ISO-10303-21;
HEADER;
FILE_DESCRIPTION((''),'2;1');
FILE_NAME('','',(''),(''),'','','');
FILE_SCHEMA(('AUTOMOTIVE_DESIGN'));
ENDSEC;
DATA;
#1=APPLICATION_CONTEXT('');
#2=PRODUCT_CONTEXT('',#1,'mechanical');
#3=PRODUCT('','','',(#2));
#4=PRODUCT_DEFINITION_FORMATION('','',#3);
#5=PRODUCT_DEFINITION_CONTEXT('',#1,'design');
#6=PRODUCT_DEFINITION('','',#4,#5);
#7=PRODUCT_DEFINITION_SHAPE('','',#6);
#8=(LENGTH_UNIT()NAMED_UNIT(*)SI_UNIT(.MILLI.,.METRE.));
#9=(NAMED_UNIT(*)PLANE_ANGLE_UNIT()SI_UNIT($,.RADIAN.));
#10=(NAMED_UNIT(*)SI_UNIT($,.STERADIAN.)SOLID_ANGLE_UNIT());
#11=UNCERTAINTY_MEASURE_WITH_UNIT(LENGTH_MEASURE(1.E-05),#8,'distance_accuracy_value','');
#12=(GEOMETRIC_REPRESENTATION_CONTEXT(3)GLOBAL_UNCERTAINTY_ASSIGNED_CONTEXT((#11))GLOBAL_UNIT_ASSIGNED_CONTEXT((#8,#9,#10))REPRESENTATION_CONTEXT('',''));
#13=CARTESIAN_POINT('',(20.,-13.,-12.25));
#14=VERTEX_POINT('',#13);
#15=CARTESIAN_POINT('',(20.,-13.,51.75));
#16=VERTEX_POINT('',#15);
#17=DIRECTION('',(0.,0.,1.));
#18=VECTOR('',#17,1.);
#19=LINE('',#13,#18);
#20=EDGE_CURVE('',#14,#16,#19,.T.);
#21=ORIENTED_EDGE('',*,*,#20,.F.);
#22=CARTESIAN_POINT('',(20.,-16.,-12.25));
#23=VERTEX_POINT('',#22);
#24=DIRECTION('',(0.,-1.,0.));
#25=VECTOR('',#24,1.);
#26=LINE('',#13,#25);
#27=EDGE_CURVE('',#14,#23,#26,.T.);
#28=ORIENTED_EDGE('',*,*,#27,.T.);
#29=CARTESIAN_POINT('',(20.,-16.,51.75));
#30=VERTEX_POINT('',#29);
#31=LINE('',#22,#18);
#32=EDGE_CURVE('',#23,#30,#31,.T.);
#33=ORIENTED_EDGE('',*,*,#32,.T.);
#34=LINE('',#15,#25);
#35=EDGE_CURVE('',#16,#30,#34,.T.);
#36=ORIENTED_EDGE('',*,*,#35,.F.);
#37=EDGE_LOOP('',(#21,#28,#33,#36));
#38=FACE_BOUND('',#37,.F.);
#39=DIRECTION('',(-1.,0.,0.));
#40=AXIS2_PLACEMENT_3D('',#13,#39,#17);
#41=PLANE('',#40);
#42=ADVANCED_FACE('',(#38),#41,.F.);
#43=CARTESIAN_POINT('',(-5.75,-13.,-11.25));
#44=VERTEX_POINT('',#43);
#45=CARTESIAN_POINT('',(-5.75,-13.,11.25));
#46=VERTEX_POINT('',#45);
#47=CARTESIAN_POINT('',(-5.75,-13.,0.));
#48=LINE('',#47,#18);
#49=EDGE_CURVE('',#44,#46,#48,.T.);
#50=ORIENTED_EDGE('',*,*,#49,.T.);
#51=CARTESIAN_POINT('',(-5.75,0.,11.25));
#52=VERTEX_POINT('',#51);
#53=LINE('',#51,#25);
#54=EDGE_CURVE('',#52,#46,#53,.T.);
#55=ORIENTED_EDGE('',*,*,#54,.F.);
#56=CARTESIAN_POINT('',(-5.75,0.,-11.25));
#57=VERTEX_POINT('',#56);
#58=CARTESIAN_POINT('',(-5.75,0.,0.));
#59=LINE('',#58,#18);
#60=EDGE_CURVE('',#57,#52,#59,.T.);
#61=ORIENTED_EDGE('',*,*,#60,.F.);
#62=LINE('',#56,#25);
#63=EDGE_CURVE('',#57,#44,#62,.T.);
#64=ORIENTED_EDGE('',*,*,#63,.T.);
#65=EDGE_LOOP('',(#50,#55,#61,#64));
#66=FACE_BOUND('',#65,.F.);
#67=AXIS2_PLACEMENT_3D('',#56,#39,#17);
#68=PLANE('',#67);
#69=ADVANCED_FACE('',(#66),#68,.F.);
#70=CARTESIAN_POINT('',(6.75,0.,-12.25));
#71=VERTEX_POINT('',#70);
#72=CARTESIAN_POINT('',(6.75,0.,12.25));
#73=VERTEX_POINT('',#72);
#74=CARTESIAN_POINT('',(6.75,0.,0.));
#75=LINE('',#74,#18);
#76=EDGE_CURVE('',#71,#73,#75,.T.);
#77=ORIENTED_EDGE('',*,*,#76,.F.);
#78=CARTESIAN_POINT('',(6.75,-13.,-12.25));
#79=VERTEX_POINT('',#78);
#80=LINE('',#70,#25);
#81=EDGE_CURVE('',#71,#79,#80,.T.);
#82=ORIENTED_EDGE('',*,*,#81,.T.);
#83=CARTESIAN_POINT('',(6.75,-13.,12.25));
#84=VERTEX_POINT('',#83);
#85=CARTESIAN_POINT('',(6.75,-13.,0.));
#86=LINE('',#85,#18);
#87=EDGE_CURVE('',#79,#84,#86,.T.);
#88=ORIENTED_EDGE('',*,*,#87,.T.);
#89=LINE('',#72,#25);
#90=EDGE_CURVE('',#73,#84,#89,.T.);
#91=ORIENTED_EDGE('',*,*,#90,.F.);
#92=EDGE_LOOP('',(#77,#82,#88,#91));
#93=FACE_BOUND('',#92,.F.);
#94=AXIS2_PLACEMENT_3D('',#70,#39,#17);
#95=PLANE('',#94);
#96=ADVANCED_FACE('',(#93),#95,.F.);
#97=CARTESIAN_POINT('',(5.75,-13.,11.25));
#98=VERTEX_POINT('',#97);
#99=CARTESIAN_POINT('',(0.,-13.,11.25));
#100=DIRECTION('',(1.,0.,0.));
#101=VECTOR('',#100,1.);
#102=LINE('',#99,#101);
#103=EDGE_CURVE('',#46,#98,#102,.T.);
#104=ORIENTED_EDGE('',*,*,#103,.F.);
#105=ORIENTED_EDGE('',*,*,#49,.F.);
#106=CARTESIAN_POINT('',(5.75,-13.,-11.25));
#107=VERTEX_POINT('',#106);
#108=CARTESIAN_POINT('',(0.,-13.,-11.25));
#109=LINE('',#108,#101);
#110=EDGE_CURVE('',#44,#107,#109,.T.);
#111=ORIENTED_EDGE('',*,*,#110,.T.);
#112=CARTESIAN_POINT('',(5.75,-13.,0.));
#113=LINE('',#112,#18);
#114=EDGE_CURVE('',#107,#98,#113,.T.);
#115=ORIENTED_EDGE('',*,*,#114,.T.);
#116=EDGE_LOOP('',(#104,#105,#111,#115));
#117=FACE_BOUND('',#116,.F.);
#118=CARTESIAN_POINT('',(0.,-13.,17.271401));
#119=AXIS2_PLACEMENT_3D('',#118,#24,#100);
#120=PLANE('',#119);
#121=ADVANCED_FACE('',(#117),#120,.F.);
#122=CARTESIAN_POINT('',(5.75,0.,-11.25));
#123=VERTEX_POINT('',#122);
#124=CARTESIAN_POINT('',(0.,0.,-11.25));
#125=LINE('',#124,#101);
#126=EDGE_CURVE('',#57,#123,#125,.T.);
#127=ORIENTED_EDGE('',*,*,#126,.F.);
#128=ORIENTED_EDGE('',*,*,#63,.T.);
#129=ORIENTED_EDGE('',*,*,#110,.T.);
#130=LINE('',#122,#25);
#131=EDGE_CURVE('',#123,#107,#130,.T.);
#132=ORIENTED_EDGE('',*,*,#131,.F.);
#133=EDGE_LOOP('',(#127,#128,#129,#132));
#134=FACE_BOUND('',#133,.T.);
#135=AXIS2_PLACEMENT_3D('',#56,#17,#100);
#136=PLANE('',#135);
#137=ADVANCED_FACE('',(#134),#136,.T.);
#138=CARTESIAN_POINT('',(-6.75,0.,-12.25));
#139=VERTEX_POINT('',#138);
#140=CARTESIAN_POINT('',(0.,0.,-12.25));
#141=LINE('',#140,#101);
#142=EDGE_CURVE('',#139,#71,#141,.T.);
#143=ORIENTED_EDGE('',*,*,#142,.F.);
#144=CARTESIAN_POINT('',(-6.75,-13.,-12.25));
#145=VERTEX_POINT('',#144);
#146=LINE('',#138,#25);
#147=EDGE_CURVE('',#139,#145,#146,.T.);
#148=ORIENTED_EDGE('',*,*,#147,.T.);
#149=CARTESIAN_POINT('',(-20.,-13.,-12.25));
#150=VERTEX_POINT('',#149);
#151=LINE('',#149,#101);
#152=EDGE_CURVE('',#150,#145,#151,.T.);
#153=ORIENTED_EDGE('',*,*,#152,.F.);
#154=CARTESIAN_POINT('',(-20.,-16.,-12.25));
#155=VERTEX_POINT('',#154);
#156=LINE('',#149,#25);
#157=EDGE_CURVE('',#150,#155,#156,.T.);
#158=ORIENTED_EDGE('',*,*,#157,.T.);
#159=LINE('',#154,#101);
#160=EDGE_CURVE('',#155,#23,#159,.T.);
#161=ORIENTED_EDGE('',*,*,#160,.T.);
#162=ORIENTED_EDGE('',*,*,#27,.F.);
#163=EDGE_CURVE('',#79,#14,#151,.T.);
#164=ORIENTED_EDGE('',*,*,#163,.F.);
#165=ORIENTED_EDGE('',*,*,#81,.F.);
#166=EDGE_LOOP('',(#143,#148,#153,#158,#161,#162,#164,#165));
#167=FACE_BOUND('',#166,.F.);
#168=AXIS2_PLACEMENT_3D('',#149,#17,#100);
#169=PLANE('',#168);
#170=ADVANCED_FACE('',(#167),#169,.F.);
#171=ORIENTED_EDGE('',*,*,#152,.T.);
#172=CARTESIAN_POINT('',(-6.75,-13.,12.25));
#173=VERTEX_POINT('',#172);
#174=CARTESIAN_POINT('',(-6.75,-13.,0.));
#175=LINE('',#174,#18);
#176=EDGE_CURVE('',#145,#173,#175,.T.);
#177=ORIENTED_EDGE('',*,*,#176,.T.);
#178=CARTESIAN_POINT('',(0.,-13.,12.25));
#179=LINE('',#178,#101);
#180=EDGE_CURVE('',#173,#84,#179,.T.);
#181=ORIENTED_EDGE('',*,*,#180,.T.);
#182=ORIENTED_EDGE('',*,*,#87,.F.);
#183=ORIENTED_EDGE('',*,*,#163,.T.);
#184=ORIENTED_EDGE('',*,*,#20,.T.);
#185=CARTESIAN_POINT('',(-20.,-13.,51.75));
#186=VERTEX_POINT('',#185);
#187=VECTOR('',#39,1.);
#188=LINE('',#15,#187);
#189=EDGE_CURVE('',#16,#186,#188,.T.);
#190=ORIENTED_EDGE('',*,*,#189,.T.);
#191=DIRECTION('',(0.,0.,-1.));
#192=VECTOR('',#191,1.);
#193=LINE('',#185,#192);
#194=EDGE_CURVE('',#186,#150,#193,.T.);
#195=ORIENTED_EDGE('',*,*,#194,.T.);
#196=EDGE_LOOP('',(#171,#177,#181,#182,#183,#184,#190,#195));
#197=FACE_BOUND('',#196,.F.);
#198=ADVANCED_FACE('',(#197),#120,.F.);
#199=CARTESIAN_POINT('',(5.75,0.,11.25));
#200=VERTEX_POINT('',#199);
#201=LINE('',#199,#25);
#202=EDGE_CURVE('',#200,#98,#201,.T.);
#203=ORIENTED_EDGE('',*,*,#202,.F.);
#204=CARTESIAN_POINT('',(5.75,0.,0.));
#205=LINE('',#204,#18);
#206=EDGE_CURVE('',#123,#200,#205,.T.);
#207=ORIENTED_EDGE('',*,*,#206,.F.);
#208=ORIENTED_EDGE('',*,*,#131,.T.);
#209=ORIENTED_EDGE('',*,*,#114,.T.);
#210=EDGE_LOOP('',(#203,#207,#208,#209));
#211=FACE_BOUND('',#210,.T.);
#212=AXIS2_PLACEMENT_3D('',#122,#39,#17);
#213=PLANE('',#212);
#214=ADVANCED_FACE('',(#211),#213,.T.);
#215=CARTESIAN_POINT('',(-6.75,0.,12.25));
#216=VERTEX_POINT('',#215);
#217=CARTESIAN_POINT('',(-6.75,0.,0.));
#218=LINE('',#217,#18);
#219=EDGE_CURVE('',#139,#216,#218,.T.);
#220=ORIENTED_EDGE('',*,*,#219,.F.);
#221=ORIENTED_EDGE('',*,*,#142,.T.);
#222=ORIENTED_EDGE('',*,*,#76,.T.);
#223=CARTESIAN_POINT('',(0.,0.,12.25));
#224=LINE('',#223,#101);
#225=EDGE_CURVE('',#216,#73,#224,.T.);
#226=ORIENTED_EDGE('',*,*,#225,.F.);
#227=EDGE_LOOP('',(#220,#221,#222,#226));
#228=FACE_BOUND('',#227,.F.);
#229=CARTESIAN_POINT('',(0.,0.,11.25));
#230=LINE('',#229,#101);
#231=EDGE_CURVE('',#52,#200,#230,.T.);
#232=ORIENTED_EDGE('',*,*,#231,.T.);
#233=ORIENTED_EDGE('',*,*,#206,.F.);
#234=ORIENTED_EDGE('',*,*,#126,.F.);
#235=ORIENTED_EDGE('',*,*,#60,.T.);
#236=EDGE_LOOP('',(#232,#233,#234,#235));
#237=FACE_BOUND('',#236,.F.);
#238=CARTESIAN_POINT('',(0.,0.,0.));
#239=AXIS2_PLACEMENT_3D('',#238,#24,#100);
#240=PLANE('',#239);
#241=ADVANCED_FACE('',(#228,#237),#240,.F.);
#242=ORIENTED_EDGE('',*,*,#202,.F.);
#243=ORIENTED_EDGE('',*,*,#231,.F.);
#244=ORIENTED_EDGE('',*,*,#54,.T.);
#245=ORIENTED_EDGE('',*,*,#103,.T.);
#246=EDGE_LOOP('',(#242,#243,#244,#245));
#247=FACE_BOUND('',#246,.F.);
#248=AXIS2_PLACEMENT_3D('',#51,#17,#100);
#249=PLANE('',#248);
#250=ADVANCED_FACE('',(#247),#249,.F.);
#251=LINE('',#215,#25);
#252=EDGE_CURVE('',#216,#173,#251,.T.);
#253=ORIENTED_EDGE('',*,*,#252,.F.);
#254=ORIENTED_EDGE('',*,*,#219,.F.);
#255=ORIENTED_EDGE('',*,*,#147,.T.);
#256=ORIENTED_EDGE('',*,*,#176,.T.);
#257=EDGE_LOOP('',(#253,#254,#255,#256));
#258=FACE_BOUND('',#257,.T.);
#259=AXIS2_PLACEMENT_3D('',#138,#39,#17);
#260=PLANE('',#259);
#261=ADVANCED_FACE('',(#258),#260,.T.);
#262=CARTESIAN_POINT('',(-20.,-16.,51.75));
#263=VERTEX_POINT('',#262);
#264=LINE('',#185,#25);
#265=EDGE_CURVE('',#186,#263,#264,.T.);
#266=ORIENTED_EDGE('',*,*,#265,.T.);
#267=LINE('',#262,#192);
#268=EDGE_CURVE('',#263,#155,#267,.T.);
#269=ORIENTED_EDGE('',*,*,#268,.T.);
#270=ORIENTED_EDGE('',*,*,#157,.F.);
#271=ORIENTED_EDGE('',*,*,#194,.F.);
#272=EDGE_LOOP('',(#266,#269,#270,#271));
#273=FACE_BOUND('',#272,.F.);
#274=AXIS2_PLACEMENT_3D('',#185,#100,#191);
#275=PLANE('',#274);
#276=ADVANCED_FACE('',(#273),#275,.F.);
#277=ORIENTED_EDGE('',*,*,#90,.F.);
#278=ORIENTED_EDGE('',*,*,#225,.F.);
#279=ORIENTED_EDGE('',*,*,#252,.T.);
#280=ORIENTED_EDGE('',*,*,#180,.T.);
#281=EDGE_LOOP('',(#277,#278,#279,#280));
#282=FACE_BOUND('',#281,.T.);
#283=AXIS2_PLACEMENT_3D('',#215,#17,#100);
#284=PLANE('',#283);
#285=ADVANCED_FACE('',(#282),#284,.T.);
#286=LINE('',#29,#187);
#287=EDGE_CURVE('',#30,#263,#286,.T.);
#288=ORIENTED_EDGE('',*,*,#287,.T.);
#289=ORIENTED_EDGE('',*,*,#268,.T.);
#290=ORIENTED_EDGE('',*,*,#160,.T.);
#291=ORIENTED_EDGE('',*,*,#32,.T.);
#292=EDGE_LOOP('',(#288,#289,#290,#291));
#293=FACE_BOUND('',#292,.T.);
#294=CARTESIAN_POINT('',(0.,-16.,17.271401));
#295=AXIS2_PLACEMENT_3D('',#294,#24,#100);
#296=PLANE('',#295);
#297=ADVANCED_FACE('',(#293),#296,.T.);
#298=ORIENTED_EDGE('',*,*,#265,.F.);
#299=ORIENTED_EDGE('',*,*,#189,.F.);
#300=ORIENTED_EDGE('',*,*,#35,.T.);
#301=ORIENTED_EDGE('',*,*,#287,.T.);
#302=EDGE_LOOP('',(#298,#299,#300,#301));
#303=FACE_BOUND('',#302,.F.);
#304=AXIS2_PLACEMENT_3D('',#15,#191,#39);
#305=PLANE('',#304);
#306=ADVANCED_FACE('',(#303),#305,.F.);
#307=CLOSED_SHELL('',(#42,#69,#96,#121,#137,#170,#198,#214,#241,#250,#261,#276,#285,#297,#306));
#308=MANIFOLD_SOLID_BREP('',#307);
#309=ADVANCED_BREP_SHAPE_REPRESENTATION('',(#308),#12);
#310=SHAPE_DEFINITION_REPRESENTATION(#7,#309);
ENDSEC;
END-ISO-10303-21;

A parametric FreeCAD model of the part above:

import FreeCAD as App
import Part
import Sketcher

V = App.Vector

doc = App.newDocument("Part")
body = doc.addObject("PartDesign::Body", "Body")

# Sketch on XZ plane
sketch1 = doc.addObject("Sketcher::SketchObject", "Sketch")
body.addObject(sketch1)
sketch1.AttachmentSupport = (doc.XZ_Plane, [""])
sketch1.MapMode = "FlatFace"
sketch1.addGeometry([
    Part.LineSegment(V(-7, 12, 0), V(-7, -12, 0)),  # 0
    Part.LineSegment(V(-7, -12, 0), V(7, -12, 0)),  # 1
    Part.LineSegment(V(7, -12, 0), V(7, 12, 0)),  # 2
    Part.LineSegment(V(7, 12, 0), V(-7, 12, 0)),  # 3
    Part.LineSegment(V(6, -11, 0), V(-6, -11, 0)),  # 4
    Part.LineSegment(V(-6, -11, 0), V(-6, 11, 0)),  # 5
    Part.LineSegment(V(-6, 11, 0), V(6, 11, 0)),  # 6
    Part.LineSegment(V(6, 11, 0), V(6, -11, 0)),  # 7
], False)
sketch1.addConstraint([
    Sketcher.Constraint("Coincident", 0, 2, 1, 1),
    Sketcher.Constraint("Coincident", 1, 2, 2, 1),
    Sketcher.Constraint("Coincident", 2, 2, 3, 1),
    Sketcher.Constraint("Coincident", 3, 2, 0, 1),
    Sketcher.Constraint("Coincident", 4, 2, 5, 1),
    Sketcher.Constraint("Coincident", 5, 2, 6, 1),
    Sketcher.Constraint("Coincident", 6, 2, 7, 1),
    Sketcher.Constraint("Coincident", 7, 2, 4, 1),
    Sketcher.Constraint("Vertical", 0),
    Sketcher.Constraint("Horizontal", 1),
    Sketcher.Constraint("Vertical", 2),
    Sketcher.Constraint("Horizontal", 3),
    Sketcher.Constraint("Horizontal", 4),
    Sketcher.Constraint("Vertical", 5),
    Sketcher.Constraint("Horizontal", 6),
    Sketcher.Constraint("Vertical", 7),
    Sketcher.Constraint("Symmetric", 0, 2, 2, 2, -1, 1),
    Sketcher.Constraint("Symmetric", 4, 2, 6, 2, -1, 1),
    Sketcher.Constraint("DistanceX", 1, 1, 1, 2, 13.5),
    Sketcher.Constraint("DistanceX", 4, 2, 4, 1, 11.5),
    Sketcher.Constraint("DistanceY", 0, 2, 0, 1, 24.5),
    Sketcher.Constraint("DistanceY", 5, 1, 5, 2, 22.5),
])
pad1 = doc.addObject("PartDesign::Pad", "Pad")
body.addObject(pad1)
pad1.Profile = sketch1
pad1.Length = 13

# Sketch on XZ plane
sketch2 = doc.addObject("Sketcher::SketchObject", "Sketch001")
body.addObject(sketch2)
sketch2.AttachmentSupport = (doc.XZ_Plane, [""])
sketch2.MapMode = "FlatFace"
sketch2.AttachmentOffset = App.Placement(V(0, 0, 13), App.Rotation())
sketch2.addGeometry([
    Part.LineSegment(V(-20, 52, 0), V(-20, -12, 0)),
    Part.LineSegment(V(-20, -12, 0), V(20, -12, 0)),
    Part.LineSegment(V(20, -12, 0), V(20, 52, 0)),
    Part.LineSegment(V(20, 52, 0), V(-20, 52, 0)),
], False)
sketch2.addConstraint([
    Sketcher.Constraint("Coincident", 0, 2, 1, 1),
    Sketcher.Constraint("Coincident", 1, 2, 2, 1),
    Sketcher.Constraint("Coincident", 2, 2, 3, 1),
    Sketcher.Constraint("Coincident", 3, 2, 0, 1),
    Sketcher.Constraint("Vertical", 0),
    Sketcher.Constraint("Horizontal", 1),
    Sketcher.Constraint("Vertical", 2),
    Sketcher.Constraint("Horizontal", 3),
    Sketcher.Constraint("DistanceX", 1, 1, 1, 2, 40.0),
    Sketcher.Constraint("DistanceY", 0, 2, 0, 1, 64.0),
    Sketcher.Constraint("DistanceX", 0, 2, -1, 1, 20.0),
    Sketcher.Constraint("DistanceY", 0, 2, -1, 1, 12.25),
])
pad2 = doc.addObject("PartDesign::Pad", "Pad001")
body.addObject(pad2)
pad2.Profile = sketch2
pad2.Length = 3

doc.recompute()
